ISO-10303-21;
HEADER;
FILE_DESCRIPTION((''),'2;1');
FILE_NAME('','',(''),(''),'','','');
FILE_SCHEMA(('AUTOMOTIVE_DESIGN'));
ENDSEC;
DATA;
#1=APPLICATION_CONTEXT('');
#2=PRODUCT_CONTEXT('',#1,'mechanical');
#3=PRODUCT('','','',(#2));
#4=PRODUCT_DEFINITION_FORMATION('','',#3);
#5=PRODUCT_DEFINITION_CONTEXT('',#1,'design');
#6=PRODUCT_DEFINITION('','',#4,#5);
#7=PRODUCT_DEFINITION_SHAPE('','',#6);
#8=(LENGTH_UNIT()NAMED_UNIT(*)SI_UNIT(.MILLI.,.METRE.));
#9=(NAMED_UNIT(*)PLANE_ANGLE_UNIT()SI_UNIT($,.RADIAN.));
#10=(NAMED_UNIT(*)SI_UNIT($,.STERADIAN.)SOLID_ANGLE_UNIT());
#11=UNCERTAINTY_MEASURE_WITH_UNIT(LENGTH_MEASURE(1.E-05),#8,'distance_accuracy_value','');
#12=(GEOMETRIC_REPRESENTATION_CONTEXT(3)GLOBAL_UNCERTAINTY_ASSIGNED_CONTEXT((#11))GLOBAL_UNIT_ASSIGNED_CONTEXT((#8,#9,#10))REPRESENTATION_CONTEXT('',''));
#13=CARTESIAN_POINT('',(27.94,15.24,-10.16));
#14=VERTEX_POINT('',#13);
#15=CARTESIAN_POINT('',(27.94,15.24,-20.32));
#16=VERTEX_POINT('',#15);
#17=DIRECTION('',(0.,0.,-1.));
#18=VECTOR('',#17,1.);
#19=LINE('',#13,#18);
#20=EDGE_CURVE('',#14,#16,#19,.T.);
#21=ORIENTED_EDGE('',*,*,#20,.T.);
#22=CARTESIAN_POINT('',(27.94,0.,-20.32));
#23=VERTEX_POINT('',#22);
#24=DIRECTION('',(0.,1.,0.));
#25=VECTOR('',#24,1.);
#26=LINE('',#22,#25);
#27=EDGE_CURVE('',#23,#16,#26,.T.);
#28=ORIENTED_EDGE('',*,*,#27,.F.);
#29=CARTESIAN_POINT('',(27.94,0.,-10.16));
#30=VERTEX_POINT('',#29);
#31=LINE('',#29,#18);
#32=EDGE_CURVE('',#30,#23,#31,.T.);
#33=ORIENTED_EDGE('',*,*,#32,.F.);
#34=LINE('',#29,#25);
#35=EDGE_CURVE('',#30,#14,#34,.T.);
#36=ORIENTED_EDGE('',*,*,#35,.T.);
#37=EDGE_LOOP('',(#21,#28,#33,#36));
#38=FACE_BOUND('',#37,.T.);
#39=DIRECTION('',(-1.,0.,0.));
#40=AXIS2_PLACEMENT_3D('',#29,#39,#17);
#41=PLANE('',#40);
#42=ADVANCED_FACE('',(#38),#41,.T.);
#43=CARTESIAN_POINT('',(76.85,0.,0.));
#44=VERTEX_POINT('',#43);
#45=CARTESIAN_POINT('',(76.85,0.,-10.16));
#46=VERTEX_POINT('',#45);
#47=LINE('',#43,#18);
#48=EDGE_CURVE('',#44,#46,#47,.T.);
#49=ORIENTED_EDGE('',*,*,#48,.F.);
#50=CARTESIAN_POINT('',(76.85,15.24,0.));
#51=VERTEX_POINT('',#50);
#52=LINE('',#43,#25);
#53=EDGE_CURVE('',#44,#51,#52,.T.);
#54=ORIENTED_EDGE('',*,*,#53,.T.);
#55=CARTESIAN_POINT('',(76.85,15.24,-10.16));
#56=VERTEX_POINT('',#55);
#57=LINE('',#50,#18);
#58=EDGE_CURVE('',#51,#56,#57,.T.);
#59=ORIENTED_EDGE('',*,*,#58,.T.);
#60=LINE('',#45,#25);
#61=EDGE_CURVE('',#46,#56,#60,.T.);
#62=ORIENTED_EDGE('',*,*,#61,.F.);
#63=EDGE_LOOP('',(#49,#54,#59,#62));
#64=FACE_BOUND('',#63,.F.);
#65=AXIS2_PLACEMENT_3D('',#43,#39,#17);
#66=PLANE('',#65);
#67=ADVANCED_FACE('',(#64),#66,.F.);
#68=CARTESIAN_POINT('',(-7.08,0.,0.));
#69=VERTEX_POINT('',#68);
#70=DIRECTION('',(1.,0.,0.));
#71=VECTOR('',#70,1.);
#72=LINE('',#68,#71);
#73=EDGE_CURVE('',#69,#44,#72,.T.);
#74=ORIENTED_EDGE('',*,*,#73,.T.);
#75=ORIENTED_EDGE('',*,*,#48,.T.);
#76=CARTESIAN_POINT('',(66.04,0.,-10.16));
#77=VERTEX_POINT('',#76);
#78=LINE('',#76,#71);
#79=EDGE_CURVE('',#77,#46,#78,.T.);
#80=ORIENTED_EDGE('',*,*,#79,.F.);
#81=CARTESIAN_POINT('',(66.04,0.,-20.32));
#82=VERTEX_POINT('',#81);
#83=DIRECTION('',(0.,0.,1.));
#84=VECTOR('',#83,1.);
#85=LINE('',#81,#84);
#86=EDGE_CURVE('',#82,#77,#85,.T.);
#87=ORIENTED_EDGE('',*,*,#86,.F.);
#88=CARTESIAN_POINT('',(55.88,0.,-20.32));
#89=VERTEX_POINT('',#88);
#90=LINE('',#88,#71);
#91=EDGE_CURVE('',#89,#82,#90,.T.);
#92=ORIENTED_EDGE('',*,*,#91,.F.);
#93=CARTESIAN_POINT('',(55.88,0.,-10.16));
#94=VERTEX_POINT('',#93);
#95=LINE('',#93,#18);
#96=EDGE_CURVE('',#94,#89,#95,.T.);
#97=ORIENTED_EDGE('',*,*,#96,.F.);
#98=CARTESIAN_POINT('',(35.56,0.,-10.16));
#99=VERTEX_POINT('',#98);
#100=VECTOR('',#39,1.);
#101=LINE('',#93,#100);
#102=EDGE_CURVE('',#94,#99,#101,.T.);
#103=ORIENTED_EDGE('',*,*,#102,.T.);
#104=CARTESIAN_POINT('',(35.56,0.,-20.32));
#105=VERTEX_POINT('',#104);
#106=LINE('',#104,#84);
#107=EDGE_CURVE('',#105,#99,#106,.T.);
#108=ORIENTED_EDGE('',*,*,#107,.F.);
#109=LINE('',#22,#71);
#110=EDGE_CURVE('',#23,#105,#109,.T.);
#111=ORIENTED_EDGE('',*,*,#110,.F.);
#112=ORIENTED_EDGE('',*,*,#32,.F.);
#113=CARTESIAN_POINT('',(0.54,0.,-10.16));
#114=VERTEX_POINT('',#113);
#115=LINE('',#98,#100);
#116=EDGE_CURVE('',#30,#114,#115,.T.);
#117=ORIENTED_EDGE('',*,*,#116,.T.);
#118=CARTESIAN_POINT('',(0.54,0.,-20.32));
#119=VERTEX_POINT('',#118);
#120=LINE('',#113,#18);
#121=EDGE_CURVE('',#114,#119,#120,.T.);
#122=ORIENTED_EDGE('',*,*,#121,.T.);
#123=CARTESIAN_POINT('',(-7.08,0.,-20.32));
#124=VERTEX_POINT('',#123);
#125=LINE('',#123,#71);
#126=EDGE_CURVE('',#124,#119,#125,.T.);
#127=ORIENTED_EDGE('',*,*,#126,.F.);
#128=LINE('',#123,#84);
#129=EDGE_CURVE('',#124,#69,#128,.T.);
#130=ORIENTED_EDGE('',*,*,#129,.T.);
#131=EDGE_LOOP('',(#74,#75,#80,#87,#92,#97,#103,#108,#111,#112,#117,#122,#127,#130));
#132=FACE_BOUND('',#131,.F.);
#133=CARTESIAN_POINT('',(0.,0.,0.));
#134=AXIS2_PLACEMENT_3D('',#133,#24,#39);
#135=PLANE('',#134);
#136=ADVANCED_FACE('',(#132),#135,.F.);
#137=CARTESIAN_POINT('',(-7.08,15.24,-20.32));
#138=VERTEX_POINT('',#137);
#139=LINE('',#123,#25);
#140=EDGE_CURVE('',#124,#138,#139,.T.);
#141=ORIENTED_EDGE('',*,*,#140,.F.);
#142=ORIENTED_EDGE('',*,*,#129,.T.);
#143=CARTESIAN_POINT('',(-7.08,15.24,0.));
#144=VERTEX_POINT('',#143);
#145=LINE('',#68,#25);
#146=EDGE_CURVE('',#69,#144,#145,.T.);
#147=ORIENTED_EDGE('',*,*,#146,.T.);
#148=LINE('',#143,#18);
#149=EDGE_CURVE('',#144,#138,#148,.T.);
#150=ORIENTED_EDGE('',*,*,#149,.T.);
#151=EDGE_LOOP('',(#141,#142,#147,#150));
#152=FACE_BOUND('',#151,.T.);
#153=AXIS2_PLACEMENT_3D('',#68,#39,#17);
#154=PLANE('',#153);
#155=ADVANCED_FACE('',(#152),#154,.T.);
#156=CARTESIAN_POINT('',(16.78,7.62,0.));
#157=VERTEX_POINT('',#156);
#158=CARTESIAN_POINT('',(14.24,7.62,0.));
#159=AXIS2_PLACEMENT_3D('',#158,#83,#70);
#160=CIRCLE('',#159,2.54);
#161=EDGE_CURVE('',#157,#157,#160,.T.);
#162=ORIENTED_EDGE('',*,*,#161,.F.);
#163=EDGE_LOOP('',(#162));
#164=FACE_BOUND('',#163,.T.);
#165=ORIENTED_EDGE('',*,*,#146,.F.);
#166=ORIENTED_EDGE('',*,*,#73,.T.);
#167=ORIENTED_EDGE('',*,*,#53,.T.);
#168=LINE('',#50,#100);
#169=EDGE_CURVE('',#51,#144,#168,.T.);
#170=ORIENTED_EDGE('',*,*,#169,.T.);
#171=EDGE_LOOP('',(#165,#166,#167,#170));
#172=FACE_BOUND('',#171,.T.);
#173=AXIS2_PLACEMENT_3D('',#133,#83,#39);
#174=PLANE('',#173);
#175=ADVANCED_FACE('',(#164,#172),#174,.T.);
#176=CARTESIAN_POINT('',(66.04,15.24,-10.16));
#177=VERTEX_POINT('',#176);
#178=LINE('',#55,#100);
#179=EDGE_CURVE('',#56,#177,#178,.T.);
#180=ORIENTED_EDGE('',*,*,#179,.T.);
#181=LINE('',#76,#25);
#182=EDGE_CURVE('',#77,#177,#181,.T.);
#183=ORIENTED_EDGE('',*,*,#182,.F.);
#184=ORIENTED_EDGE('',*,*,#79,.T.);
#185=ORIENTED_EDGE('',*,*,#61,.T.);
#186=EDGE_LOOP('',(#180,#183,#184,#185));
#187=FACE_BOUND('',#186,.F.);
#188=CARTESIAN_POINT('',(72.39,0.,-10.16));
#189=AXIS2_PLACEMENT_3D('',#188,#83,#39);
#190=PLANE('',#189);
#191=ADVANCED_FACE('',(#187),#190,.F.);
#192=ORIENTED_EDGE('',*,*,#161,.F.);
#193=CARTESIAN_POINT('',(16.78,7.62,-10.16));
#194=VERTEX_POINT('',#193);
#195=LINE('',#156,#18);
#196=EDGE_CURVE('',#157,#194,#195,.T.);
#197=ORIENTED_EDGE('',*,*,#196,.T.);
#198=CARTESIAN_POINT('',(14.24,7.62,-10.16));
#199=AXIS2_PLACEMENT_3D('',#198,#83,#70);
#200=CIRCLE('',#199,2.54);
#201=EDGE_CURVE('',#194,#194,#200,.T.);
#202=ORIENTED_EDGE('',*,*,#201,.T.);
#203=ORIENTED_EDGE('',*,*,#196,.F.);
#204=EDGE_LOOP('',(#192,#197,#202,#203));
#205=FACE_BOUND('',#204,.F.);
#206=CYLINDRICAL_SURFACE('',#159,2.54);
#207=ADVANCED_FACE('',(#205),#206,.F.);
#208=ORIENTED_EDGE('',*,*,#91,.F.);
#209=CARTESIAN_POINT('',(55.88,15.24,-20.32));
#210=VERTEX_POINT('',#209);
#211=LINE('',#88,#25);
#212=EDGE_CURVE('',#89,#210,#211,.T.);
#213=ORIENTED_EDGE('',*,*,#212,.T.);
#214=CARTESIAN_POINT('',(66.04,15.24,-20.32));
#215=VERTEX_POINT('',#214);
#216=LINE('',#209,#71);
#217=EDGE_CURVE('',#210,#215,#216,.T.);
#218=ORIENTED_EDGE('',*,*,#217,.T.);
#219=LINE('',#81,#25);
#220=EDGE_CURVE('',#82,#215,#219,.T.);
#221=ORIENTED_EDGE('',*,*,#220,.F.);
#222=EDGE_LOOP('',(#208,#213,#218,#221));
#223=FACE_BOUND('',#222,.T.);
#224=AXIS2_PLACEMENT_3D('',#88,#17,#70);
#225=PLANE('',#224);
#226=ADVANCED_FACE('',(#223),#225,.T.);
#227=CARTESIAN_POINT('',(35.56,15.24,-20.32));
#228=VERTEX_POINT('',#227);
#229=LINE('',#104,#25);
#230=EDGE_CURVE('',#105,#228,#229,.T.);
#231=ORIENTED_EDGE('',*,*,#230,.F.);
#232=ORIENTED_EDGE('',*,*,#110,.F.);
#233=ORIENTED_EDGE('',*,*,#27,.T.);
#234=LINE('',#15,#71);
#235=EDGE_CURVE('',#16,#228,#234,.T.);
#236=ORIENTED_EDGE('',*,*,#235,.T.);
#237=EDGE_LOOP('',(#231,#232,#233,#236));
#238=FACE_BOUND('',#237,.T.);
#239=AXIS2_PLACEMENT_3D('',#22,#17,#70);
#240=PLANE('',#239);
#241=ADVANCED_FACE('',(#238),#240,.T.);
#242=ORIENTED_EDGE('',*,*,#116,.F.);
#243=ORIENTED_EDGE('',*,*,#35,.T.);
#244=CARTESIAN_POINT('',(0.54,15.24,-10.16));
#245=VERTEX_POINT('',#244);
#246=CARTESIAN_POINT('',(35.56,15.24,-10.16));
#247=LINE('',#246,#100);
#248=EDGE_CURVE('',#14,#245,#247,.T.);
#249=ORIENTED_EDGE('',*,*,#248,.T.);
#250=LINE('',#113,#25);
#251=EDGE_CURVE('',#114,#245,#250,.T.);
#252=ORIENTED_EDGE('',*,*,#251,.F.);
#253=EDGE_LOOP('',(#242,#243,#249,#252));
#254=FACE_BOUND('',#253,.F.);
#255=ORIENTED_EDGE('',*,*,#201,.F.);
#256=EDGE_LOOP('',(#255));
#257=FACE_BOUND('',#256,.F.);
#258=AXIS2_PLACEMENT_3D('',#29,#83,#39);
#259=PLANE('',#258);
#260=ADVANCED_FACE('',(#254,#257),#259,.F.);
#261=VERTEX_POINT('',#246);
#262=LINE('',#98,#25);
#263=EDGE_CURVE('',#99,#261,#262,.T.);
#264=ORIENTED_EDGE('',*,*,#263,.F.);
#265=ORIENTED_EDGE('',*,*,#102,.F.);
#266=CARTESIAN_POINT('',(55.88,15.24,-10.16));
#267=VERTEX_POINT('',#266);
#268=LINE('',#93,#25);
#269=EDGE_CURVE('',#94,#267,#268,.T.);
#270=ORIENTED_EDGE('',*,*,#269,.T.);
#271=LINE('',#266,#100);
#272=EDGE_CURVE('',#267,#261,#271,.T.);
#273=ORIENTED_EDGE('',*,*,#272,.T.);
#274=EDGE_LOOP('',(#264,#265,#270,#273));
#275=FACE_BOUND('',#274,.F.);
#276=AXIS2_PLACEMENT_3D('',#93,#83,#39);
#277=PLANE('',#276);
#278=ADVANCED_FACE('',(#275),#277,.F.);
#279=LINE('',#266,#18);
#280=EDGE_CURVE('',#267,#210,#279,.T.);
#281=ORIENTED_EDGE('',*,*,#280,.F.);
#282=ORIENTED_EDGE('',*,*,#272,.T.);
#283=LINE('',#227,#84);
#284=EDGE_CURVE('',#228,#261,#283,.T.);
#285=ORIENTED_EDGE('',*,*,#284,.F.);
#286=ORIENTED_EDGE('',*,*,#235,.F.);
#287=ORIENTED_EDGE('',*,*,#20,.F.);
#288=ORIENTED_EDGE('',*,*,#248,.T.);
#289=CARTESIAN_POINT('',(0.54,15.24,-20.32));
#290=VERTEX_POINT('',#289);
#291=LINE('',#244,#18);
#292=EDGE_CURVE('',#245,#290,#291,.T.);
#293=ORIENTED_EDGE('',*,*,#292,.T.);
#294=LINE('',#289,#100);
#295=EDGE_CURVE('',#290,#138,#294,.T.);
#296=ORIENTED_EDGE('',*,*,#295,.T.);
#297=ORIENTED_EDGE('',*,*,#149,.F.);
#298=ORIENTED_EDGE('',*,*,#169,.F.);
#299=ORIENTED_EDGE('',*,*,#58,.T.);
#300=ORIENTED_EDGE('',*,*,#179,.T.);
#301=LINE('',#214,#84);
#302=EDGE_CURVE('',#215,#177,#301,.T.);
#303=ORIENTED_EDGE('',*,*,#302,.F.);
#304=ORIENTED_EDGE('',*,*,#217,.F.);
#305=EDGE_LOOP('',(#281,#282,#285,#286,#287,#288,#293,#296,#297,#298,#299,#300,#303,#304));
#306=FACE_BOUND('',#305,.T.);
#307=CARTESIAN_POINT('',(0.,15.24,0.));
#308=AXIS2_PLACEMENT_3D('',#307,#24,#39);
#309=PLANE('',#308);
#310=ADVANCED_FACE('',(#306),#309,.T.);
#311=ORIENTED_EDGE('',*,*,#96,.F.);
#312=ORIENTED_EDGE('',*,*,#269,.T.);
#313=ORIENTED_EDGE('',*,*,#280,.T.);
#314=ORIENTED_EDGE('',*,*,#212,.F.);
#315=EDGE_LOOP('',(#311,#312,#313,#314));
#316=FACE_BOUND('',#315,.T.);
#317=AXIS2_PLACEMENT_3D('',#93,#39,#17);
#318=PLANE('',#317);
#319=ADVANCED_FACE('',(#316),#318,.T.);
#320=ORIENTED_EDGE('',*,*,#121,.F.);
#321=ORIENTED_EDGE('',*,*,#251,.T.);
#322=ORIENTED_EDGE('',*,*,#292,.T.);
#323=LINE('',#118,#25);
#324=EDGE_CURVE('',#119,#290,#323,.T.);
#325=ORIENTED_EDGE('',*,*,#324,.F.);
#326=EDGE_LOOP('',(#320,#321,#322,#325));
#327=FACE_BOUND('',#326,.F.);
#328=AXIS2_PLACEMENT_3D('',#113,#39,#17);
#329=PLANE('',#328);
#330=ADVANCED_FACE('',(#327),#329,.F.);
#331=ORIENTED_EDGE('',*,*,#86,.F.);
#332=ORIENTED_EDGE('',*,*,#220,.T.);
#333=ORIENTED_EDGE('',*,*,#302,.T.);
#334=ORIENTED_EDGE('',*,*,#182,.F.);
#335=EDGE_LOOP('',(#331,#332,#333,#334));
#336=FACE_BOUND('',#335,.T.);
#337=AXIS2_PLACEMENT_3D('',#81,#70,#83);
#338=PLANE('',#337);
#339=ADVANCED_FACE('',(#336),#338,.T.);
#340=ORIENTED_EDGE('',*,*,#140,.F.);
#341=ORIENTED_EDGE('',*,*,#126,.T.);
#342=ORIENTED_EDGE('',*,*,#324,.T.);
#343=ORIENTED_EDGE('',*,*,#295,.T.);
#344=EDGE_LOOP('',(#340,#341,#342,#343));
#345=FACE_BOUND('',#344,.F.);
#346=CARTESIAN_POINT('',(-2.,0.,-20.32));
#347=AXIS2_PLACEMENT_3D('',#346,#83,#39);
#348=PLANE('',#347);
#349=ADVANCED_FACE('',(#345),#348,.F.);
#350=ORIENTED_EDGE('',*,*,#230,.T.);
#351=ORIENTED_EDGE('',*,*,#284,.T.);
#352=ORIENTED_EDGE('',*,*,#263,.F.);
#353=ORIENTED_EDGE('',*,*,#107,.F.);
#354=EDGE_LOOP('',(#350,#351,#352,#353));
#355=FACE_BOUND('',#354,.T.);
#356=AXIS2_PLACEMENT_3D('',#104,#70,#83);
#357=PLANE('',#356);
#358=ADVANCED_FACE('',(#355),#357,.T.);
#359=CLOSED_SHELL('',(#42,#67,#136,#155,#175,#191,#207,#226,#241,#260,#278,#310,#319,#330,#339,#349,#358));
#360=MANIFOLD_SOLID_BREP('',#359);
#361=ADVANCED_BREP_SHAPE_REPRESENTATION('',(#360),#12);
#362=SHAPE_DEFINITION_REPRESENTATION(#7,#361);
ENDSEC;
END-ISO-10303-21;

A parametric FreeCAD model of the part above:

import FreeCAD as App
import Part
import Sketcher
from FreeCAD import Vector
Q = App.Units.Quantity

doc = App.newDocument("Part")
body = doc.addObject("PartDesign::Body", "Body")

# Sketch on XZ plane
sketch1 = doc.addObject("Sketcher::SketchObject", "Sketch")
body.addObject(sketch1)
sketch1.AttachmentSupport = (doc.XZ_Plane, [""])
sketch1.MapMode = "FlatFace"
sketch1.addGeometry(Part.LineSegment(Vector(-7, 0, 0), Vector(77, 0, 0)), False)
sketch1.addGeometry(Part.LineSegment(Vector(77, 0, 0), Vector(77, -10, 0)), False)
sketch1.addGeometry(Part.LineSegment(Vector(77, -10, 0), Vector(66, -10, 0)), False)
sketch1.addGeometry(Part.LineSegment(Vector(66, -10, 0), Vector(66, -20, 0)), False)
sketch1.addGeometry(Part.LineSegment(Vector(66, -20, 0), Vector(56, -20, 0)), False)
sketch1.addGeometry(Part.LineSegment(Vector(56, -20, 0), Vector(56, -10, 0)), False)
sketch1.addGeometry(Part.LineSegment(Vector(56, -10, 0), Vector(36, -10, 0)), False)
sketch1.addGeometry(Part.LineSegment(Vector(36, -10, 0), Vector(36, -20, 0)), False)
sketch1.addGeometry(Part.LineSegment(Vector(36, -20, 0), Vector(28, -20, 0)), False)
sketch1.addGeometry(Part.LineSegment(Vector(28, -20, 0), Vector(28, -10, 0)), False)
sketch1.addGeometry(Part.LineSegment(Vector(28, -10, 0), Vector(1, -10, 0)), False)
sketch1.addGeometry(Part.LineSegment(Vector(1, -10, 0), Vector(1, -20, 0)), False)
sketch1.addGeometry(Part.LineSegment(Vector(1, -20, 0), Vector(-7, -20, 0)), False)
sketch1.addGeometry(Part.LineSegment(Vector(-7, -20, 0), Vector(-7, 0, 0)), False)
sketch1.addConstraint(Sketcher.Constraint("Coincident", 0, 2, 1, 1))
sketch1.addConstraint(Sketcher.Constraint("Coincident", 1, 2, 2, 1))
sketch1.addConstraint(Sketcher.Constraint("Coincident", 2, 2, 3, 1))
sketch1.addConstraint(Sketcher.Constraint("Coincident", 3, 2, 4, 1))
sketch1.addConstraint(Sketcher.Constraint("Coincident", 4, 2, 5, 1))
sketch1.addConstraint(Sketcher.Constraint("Coincident", 5, 2, 6, 1))
sketch1.addConstraint(Sketcher.Constraint("Coincident", 6, 2, 7, 1))
sketch1.addConstraint(Sketcher.Constraint("Coincident", 7, 2, 8, 1))
sketch1.addConstraint(Sketcher.Constraint("Coincident", 8, 2, 9, 1))
sketch1.addConstraint(Sketcher.Constraint("Coincident", 9, 2, 10, 1))
sketch1.addConstraint(Sketcher.Constraint("Coincident", 10, 2, 11, 1))
sketch1.addConstraint(Sketcher.Constraint("Coincident", 11, 2, 12, 1))
sketch1.addConstraint(Sketcher.Constraint("Coincident", 12, 2, 13, 1))
sketch1.addConstraint(Sketcher.Constraint("Coincident", 13, 2, 0, 1))
sketch1.addConstraint(Sketcher.Constraint("Horizontal", 0))
sketch1.addConstraint(Sketcher.Constraint("Vertical", 1))
sketch1.addConstraint(Sketcher.Constraint("Horizontal", 2))
sketch1.addConstraint(Sketcher.Constraint("Vertical", 3))
sketch1.addConstraint(Sketcher.Constraint("Horizontal", 4))
sketch1.addConstraint(Sketcher.Constraint("Vertical", 5))
sketch1.addConstraint(Sketcher.Constraint("Horizontal", 6))
sketch1.addConstraint(Sketcher.Constraint("Vertical", 7))
sketch1.addConstraint(Sketcher.Constraint("Horizontal", 8))
sketch1.addConstraint(Sketcher.Constraint("Vertical", 9))
sketch1.addConstraint(Sketcher.Constraint("Horizontal", 10))
sketch1.addConstraint(Sketcher.Constraint("Vertical", 11))
sketch1.addConstraint(Sketcher.Constraint("Horizontal", 12))
sketch1.addConstraint(Sketcher.Constraint("Vertical", 13))
sketch1.addConstraint(Sketcher.Constraint("PointOnObject", 0, 2, -1))
sketch1.addConstraint(Sketcher.Constraint("Horizontal", 2, 2, 5, 2))
sketch1.addConstraint(Sketcher.Constraint("Horizontal", 4, 2, 7, 2))
sketch1.addConstraint(Sketcher.Constraint("Horizontal", 6, 2, 9, 2))
sketch1.addConstraint(Sketcher.Constraint("Horizontal", 8, 2, 11, 2))
sketch1.addConstraint(Sketcher.Constraint("Equal", 8, 12))
sketch1.addConstraint(Sketcher.Constraint("Equal", 4, 1))
sketch1.addConstraint(Sketcher.Constraint("Equal", 1, 3))
sketch1.addConstraint(Sketcher.Constraint("Equal", 6, 13))
sketch1.addConstraint(Sketcher.Constraint("DistanceX", 4, 2, 4, 1, Q("0.4 in")))
sketch1.addConstraint(Sketcher.Constraint("DistanceX", 8, 2, 8, 1, Q("0.3 in")))
sketch1.addConstraint(Sketcher.Constraint("DistanceX", 10, 2, 10, 1, 27.4))
sketch1.addConstraint(Sketcher.Constraint("DistanceX", -1, 1, 2, 2, Q("2.6 in")))
sketch1.addConstraint(Sketcher.Constraint("DistanceX", 2, 2, 2, 1, Q("0.4256 in")))
pad1 = doc.addObject("PartDesign::Pad", "Pad")
body.addObject(pad1)
pad1.Profile = sketch1
pad1.Length = Q("0.6 in")
pad1.Reversed = True

# Sketch on XY plane
sketch2 = doc.addObject("Sketcher::SketchObject", "Sketch001")
body.addObject(sketch2)
sketch2.AttachmentSupport = (doc.XY_Plane, [""])
sketch2.MapMode = "FlatFace"
sketch2.addGeometry(Part.Circle(Vector(14.2, 7.6, 0), Vector(0, 0, 1), 2.5), False)
sketch2.addConstraint(Sketcher.Constraint("Diameter", 0, Q("0.2 in")))
sketch2.addConstraint(Sketcher.Constraint("DistanceY", -1, 1, 0, 3, Q("0.3 in")))
sketch2.addConstraint(Sketcher.Constraint("DistanceX", -1, 1, 0, 3, 14.24))
pocket1 = doc.addObject("PartDesign::Pocket", "Pocket")
body.addObject(pocket1)
pocket1.Profile = sketch2
pocket1.Type = "ThroughAll"

doc.recompute()
